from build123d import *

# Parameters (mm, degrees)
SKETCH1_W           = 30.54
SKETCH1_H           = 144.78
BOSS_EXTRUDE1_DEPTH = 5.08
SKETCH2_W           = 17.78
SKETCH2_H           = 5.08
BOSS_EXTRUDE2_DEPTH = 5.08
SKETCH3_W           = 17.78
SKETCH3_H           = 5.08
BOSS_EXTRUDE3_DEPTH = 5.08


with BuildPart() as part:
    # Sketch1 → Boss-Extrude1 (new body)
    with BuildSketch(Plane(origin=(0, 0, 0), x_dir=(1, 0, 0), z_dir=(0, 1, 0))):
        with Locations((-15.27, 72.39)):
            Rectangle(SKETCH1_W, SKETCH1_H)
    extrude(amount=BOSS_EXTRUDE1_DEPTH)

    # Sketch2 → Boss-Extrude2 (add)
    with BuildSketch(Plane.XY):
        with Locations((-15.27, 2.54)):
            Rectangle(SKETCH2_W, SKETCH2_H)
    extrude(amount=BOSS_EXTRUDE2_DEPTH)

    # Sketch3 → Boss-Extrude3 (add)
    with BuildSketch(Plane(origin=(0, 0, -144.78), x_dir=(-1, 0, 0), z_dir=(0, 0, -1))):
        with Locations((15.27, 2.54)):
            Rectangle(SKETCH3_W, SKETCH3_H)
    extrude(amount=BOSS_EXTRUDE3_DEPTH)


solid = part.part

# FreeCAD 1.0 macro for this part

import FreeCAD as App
import Part
import Sketcher
from FreeCAD import Vector
Q = App.Units.Quantity


def add_polygon(sketch, points):
    """Adds a closed chain of lines whose ends are joined by coincident constraints."""
    first, n = sketch.GeometryCount, len(points)
    for a, b in zip(points, points[1:] + points[:1]):
        sketch.addGeometry(Part.LineSegment(App.Vector(*a, 0), App.Vector(*b, 0)), False)
    for i in range(n):
        sketch.addConstraint(Sketcher.Constraint("Coincident", first + i, 2, first + (i + 1) % n, 1))

doc = App.newDocument("Part")
body = doc.addObject("PartDesign::Body", "Body")

# Sketch on XZ plane
sketch1 = body.newObject("Sketcher::SketchObject", "Sketch")
sketch1.AttachmentSupport = (doc.getObject("XZ_Plane"), [""])
sketch1.MapMode = "FlatFace"
add_polygon(sketch1, [(-31, -145), (-31, 0), (0, 0), (0, -145)])  # lines 0-3
sketch1.addConstraint(Sketcher.Constraint("Vertical", 0))
sketch1.addConstraint(Sketcher.Constraint("Horizontal", 1))
sketch1.addConstraint(Sketcher.Constraint("Vertical", 2))
sketch1.addConstraint(Sketcher.Constraint("Horizontal", 3))
sketch1.addConstraint(Sketcher.Constraint("Coincident", 1, 2, -1, 1))
sketch1.addConstraint(Sketcher.Constraint("DistanceY", 0, 1, 0, 2, Q("5.7 in")))
sketch1.addConstraint(Sketcher.Constraint("DistanceX", 1, 1, 1, 2, 30.54))
pad1 = body.newObject("PartDesign::Pad", "Pad")
pad1.Profile = sketch1
pad1.Length = Q("0.2 in")
pad1.Reversed = True

# Sketch on XY plane
sketch2 = body.newObject("Sketcher::SketchObject", "Sketch001")
sketch2.AttachmentSupport = (doc.getObject("XY_Plane"), [""])
sketch2.MapMode = "FlatFace"
add_polygon(sketch2, [(-24, 5), (-24, 0), (-6, 0), (-6, 5)])  # lines 0-3
sketch2.addConstraint(Sketcher.Constraint("Vertical", 0))
sketch2.addConstraint(Sketcher.Constraint("Horizontal", 1))
sketch2.addConstraint(Sketcher.Constraint("Vertical", 2))
sketch2.addConstraint(Sketcher.Constraint("Horizontal", 3))
sketch2.addConstraint(Sketcher.Constraint("PointOnObject", 0, 2, -1))
sketch2.addConstraint(Sketcher.Constraint("DistanceX", 1, 1, 1, 2, Q("0.7 in")))
sketch2.addConstraint(Sketcher.Constraint("DistanceY", 0, 2, 0, 1, Q("0.2 in")))
sketch2.addConstraint(Sketcher.Constraint("DistanceX", 0, 2, -1, 1, 24.16))
pad2 = body.newObject("PartDesign::Pad", "Pad001")
pad2.Profile = sketch2
pad2.Length = Q("0.2 in")

# Sketch on XY plane
sketch3 = body.newObject("Sketcher::SketchObject", "Sketch002")
sketch3.AttachmentSupport = (doc.getObject("XY_Plane"), [""])
sketch3.MapMode = "FlatFace"
sketch3.AttachmentOffset = App.Placement(Vector(0, 0, -5.7 * 25.4), App.Rotation())
add_polygon(sketch3, [(-6, 5), (-6, 0), (-24, 0), (-24, 5)])  # lines 0-3
sketch3.addConstraint(Sketcher.Constraint("Vertical", 0))
sketch3.addConstraint(Sketcher.Constraint("Horizontal", 1))
sketch3.addConstraint(Sketcher.Constraint("Vertical", 2))
sketch3.addConstraint(Sketcher.Constraint("Horizontal", 3))
sketch3.addConstraint(Sketcher.Constraint("PointOnObject", 0, 2, -1))
sketch3.addConstraint(Sketcher.Constraint("DistanceX", 1, 2, 1, 1, Q("0.7 in")))
sketch3.addConstraint(Sketcher.Constraint("DistanceY", 0, 2, 0, 1, Q("0.2 in")))
sketch3.addConstraint(Sketcher.Constraint("DistanceX", 0, 2, -1, 1, 6.38))
pad3 = body.newObject("PartDesign::Pad", "Pad002")
pad3.Profile = sketch3
pad3.Length = Q("0.2 in")
pad3.Reversed = True

doc.recompute()
